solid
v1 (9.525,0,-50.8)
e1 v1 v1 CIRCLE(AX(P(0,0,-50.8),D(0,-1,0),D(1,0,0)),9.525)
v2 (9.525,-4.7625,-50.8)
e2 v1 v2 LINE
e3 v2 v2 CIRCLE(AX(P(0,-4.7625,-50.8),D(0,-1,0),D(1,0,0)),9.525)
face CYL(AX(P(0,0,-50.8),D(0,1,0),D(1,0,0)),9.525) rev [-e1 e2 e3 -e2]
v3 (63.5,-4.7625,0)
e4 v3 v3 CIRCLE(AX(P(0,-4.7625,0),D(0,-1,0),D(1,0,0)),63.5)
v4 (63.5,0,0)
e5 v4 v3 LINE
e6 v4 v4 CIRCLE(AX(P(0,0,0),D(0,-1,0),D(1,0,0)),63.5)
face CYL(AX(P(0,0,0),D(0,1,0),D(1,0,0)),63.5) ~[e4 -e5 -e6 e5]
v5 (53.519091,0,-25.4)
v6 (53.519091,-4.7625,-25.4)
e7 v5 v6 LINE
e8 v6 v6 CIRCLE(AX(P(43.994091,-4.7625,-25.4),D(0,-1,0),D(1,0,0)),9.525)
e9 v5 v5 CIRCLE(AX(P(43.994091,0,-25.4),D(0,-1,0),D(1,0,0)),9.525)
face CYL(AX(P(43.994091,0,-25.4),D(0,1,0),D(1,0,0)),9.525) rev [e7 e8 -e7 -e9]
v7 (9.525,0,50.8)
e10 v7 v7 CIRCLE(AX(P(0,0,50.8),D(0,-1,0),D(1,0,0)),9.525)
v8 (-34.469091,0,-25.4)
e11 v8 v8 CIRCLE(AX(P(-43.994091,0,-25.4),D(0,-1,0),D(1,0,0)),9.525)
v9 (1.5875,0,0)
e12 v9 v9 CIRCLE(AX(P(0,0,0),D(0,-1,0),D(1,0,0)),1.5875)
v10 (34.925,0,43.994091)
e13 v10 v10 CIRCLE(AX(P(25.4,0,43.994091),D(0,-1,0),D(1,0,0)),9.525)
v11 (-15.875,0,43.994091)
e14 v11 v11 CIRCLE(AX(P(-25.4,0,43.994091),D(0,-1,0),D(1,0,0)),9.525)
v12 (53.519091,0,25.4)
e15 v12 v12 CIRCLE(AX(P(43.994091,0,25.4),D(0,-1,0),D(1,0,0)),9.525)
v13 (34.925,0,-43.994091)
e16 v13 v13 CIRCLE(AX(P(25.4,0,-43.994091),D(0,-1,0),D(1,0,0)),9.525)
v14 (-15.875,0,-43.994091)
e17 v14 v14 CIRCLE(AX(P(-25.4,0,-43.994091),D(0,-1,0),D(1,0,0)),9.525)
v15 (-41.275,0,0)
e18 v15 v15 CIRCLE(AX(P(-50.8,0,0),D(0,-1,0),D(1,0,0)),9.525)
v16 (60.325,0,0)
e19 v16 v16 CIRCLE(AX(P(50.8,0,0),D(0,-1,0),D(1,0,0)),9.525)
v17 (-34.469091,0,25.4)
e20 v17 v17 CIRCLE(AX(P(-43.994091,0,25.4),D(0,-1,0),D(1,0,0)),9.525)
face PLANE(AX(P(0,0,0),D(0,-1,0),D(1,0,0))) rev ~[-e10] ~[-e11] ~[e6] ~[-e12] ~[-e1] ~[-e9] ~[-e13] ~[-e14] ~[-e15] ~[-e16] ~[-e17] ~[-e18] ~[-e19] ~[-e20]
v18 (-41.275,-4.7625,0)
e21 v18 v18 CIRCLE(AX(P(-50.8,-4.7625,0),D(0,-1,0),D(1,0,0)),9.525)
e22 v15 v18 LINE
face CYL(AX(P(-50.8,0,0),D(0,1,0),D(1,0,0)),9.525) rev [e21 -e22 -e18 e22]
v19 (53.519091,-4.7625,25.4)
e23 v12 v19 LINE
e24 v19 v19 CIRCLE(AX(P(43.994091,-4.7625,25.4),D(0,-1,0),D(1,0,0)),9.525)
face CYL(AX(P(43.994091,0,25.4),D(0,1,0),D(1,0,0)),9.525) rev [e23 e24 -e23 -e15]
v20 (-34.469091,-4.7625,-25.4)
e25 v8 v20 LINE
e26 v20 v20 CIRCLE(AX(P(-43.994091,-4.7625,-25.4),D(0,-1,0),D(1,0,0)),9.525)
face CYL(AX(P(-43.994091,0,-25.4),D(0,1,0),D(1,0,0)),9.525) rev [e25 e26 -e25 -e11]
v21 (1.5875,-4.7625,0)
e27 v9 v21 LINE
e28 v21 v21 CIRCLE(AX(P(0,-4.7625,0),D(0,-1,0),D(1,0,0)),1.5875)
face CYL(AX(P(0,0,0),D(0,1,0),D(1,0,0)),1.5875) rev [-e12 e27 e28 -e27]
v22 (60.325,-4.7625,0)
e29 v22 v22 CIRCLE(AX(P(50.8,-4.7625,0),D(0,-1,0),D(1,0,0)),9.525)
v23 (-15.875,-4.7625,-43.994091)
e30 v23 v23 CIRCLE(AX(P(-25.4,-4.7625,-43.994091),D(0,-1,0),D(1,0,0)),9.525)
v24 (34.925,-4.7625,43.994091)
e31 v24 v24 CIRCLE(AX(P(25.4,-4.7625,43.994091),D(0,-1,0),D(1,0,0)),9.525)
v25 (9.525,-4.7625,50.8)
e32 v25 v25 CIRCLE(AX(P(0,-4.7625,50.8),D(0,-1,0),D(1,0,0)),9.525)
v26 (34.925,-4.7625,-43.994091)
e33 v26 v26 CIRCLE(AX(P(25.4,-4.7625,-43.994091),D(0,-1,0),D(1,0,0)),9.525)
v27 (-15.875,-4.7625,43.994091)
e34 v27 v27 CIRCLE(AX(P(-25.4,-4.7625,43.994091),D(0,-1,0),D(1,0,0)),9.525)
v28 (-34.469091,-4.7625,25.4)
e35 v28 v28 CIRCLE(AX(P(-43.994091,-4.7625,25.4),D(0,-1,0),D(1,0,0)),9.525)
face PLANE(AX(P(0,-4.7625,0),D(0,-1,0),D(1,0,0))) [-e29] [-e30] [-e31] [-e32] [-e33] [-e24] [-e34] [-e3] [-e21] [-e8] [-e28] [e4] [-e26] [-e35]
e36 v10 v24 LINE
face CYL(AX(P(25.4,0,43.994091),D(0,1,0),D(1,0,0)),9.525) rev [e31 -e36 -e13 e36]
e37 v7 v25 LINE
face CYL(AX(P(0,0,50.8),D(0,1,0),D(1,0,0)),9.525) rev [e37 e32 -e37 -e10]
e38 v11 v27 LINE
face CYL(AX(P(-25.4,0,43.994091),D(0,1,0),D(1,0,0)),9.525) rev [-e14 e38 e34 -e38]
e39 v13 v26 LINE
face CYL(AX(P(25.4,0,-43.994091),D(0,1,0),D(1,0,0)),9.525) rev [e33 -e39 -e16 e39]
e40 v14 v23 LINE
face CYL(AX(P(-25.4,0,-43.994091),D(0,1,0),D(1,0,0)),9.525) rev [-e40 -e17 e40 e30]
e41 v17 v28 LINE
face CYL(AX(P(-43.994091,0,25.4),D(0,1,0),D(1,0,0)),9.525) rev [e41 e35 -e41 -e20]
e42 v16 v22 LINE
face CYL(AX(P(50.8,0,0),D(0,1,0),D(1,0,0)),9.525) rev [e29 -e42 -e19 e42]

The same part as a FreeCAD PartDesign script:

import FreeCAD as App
import Part
import Sketcher
Q = App.Units.Quantity

doc = App.newDocument("Part")
body = doc.addObject("PartDesign::Body", "Body")

# Sketch on XZ plane
sketch1 = doc.addObject("Sketcher::SketchObject", "Sketch")
body.addObject(sketch1)
sketch1.AttachmentSupport = (doc.XZ_Plane, [""])
sketch1.MapMode = "FlatFace"
sketch1.addGeometry([
    Part.Circle(App.Vector(0, 0, 0), App.Vector(0, 0, 1), 63.5),  # 0
    Part.Circle(App.Vector(-25.4, -44, 0), App.Vector(0, 0, 1), 9.5),  # 1
    Part.Circle(App.Vector(-44, -25.4, 0), App.Vector(0, 0, 1), 9.5),  # 2
    Part.Circle(App.Vector(-50.8, 0, 0), App.Vector(0, 0, 1), 9.5),  # 3
    Part.Circle(App.Vector(0, -50.8, 0), App.Vector(0, 0, 1), 9.5),  # 4
    Part.Circle(App.Vector(25.4, -44, 0), App.Vector(0, 0, 1), 9.5),  # 5
    Part.Circle(App.Vector(44, -25.4, 0), App.Vector(0, 0, 1), 9.5),  # 6
    Part.Circle(App.Vector(50.8, 0, 0), App.Vector(0, 0, 1), 9.5),  # 7
    Part.Circle(App.Vector(-44, 25.4, 0), App.Vector(0, 0, 1), 9.5),  # 8
    Part.Circle(App.Vector(-25.4, 44, 0), App.Vector(0, 0, 1), 9.5),  # 9
    Part.Circle(App.Vector(0, 0, 0), App.Vector(0, 0, 1), 1.6),  # 10
    Part.Circle(App.Vector(44, 25.4, 0), App.Vector(0, 0, 1), 9.5),  # 11
    Part.Circle(App.Vector(25.4, 44, 0), App.Vector(0, 0, 1), 9.5),  # 12
    Part.Circle(App.Vector(0, 50.8, 0), App.Vector(0, 0, 1), 9.5),  # 13
], False)
sketch1.addConstraint([
    Sketcher.Constraint("Coincident", 0, 3, -1, 1),
    Sketcher.Constraint("Coincident", 10, 3, -1, 1),
    Sketcher.Constraint("Equal", 1, 2),
    Sketcher.Constraint("Equal", 2, 3),
    Sketcher.Constraint("Equal", 3, 4),
    Sketcher.Constraint("Equal", 4, 5),
    Sketcher.Constraint("Equal", 5, 6),
    Sketcher.Constraint("Equal", 6, 7),
    Sketcher.Constraint("Equal", 7, 8),
    Sketcher.Constraint("Equal", 8, 9),
    Sketcher.Constraint("Equal", 9, 11),
    Sketcher.Constraint("Equal", 11, 12),
    Sketcher.Constraint("Equal", 12, 13),
    Sketcher.Constraint("Symmetric", 3, 3, 7, 3, -1, 1),
    Sketcher.Constraint("Symmetric", 6, 3, 8, 3, -1, 1),
    Sketcher.Constraint("Symmetric", 5, 3, 9, 3, -1, 1),
    Sketcher.Constraint("Symmetric", 2, 3, 11, 3, -1, 1),
    Sketcher.Constraint("Symmetric", 1, 3, 12, 3, -1, 1),
    Sketcher.Constraint("Symmetric", 4, 3, 13, 3, -1, 1),
    Sketcher.Constraint("Symmetric", 1, 3, 5, 3, -2),
    Sketcher.Constraint("Symmetric", 2, 3, 6, 3, -2),
    Sketcher.Constraint("PointOnObject", 3, 3, -1),
    Sketcher.Constraint("PointOnObject", 4, 3, -2),
    Sketcher.Constraint("Diameter", 0, Q("5 in")),
    Sketcher.Constraint("Diameter", 1, Q("0.75 in")),
    Sketcher.Constraint("Diameter", 10, Q("0.125 in")),
    Sketcher.Constraint("DistanceX", 1, 3, -1, 1, Q("1 in")),
    Sketcher.Constraint("DistanceY", 2, 3, -1, 1, Q("1 in")),
    Sketcher.Constraint("DistanceX", 3, 3, -1, 1, Q("2 in")),
    Sketcher.Constraint("DistanceY", 4, 3, -1, 1, Q("2 in")),
    Sketcher.Constraint("DistanceY", 1, 3, -1, 1, Q("43.994091 mm")),
    Sketcher.Constraint("DistanceX", 2, 3, -1, 1, Q("43.994091 mm")),
])
pad1 = doc.addObject("PartDesign::Pad", "Pad")
body.addObject(pad1)
pad1.Profile = sketch1
pad1.Length = Q("0.1875 in")

doc.recompute()
